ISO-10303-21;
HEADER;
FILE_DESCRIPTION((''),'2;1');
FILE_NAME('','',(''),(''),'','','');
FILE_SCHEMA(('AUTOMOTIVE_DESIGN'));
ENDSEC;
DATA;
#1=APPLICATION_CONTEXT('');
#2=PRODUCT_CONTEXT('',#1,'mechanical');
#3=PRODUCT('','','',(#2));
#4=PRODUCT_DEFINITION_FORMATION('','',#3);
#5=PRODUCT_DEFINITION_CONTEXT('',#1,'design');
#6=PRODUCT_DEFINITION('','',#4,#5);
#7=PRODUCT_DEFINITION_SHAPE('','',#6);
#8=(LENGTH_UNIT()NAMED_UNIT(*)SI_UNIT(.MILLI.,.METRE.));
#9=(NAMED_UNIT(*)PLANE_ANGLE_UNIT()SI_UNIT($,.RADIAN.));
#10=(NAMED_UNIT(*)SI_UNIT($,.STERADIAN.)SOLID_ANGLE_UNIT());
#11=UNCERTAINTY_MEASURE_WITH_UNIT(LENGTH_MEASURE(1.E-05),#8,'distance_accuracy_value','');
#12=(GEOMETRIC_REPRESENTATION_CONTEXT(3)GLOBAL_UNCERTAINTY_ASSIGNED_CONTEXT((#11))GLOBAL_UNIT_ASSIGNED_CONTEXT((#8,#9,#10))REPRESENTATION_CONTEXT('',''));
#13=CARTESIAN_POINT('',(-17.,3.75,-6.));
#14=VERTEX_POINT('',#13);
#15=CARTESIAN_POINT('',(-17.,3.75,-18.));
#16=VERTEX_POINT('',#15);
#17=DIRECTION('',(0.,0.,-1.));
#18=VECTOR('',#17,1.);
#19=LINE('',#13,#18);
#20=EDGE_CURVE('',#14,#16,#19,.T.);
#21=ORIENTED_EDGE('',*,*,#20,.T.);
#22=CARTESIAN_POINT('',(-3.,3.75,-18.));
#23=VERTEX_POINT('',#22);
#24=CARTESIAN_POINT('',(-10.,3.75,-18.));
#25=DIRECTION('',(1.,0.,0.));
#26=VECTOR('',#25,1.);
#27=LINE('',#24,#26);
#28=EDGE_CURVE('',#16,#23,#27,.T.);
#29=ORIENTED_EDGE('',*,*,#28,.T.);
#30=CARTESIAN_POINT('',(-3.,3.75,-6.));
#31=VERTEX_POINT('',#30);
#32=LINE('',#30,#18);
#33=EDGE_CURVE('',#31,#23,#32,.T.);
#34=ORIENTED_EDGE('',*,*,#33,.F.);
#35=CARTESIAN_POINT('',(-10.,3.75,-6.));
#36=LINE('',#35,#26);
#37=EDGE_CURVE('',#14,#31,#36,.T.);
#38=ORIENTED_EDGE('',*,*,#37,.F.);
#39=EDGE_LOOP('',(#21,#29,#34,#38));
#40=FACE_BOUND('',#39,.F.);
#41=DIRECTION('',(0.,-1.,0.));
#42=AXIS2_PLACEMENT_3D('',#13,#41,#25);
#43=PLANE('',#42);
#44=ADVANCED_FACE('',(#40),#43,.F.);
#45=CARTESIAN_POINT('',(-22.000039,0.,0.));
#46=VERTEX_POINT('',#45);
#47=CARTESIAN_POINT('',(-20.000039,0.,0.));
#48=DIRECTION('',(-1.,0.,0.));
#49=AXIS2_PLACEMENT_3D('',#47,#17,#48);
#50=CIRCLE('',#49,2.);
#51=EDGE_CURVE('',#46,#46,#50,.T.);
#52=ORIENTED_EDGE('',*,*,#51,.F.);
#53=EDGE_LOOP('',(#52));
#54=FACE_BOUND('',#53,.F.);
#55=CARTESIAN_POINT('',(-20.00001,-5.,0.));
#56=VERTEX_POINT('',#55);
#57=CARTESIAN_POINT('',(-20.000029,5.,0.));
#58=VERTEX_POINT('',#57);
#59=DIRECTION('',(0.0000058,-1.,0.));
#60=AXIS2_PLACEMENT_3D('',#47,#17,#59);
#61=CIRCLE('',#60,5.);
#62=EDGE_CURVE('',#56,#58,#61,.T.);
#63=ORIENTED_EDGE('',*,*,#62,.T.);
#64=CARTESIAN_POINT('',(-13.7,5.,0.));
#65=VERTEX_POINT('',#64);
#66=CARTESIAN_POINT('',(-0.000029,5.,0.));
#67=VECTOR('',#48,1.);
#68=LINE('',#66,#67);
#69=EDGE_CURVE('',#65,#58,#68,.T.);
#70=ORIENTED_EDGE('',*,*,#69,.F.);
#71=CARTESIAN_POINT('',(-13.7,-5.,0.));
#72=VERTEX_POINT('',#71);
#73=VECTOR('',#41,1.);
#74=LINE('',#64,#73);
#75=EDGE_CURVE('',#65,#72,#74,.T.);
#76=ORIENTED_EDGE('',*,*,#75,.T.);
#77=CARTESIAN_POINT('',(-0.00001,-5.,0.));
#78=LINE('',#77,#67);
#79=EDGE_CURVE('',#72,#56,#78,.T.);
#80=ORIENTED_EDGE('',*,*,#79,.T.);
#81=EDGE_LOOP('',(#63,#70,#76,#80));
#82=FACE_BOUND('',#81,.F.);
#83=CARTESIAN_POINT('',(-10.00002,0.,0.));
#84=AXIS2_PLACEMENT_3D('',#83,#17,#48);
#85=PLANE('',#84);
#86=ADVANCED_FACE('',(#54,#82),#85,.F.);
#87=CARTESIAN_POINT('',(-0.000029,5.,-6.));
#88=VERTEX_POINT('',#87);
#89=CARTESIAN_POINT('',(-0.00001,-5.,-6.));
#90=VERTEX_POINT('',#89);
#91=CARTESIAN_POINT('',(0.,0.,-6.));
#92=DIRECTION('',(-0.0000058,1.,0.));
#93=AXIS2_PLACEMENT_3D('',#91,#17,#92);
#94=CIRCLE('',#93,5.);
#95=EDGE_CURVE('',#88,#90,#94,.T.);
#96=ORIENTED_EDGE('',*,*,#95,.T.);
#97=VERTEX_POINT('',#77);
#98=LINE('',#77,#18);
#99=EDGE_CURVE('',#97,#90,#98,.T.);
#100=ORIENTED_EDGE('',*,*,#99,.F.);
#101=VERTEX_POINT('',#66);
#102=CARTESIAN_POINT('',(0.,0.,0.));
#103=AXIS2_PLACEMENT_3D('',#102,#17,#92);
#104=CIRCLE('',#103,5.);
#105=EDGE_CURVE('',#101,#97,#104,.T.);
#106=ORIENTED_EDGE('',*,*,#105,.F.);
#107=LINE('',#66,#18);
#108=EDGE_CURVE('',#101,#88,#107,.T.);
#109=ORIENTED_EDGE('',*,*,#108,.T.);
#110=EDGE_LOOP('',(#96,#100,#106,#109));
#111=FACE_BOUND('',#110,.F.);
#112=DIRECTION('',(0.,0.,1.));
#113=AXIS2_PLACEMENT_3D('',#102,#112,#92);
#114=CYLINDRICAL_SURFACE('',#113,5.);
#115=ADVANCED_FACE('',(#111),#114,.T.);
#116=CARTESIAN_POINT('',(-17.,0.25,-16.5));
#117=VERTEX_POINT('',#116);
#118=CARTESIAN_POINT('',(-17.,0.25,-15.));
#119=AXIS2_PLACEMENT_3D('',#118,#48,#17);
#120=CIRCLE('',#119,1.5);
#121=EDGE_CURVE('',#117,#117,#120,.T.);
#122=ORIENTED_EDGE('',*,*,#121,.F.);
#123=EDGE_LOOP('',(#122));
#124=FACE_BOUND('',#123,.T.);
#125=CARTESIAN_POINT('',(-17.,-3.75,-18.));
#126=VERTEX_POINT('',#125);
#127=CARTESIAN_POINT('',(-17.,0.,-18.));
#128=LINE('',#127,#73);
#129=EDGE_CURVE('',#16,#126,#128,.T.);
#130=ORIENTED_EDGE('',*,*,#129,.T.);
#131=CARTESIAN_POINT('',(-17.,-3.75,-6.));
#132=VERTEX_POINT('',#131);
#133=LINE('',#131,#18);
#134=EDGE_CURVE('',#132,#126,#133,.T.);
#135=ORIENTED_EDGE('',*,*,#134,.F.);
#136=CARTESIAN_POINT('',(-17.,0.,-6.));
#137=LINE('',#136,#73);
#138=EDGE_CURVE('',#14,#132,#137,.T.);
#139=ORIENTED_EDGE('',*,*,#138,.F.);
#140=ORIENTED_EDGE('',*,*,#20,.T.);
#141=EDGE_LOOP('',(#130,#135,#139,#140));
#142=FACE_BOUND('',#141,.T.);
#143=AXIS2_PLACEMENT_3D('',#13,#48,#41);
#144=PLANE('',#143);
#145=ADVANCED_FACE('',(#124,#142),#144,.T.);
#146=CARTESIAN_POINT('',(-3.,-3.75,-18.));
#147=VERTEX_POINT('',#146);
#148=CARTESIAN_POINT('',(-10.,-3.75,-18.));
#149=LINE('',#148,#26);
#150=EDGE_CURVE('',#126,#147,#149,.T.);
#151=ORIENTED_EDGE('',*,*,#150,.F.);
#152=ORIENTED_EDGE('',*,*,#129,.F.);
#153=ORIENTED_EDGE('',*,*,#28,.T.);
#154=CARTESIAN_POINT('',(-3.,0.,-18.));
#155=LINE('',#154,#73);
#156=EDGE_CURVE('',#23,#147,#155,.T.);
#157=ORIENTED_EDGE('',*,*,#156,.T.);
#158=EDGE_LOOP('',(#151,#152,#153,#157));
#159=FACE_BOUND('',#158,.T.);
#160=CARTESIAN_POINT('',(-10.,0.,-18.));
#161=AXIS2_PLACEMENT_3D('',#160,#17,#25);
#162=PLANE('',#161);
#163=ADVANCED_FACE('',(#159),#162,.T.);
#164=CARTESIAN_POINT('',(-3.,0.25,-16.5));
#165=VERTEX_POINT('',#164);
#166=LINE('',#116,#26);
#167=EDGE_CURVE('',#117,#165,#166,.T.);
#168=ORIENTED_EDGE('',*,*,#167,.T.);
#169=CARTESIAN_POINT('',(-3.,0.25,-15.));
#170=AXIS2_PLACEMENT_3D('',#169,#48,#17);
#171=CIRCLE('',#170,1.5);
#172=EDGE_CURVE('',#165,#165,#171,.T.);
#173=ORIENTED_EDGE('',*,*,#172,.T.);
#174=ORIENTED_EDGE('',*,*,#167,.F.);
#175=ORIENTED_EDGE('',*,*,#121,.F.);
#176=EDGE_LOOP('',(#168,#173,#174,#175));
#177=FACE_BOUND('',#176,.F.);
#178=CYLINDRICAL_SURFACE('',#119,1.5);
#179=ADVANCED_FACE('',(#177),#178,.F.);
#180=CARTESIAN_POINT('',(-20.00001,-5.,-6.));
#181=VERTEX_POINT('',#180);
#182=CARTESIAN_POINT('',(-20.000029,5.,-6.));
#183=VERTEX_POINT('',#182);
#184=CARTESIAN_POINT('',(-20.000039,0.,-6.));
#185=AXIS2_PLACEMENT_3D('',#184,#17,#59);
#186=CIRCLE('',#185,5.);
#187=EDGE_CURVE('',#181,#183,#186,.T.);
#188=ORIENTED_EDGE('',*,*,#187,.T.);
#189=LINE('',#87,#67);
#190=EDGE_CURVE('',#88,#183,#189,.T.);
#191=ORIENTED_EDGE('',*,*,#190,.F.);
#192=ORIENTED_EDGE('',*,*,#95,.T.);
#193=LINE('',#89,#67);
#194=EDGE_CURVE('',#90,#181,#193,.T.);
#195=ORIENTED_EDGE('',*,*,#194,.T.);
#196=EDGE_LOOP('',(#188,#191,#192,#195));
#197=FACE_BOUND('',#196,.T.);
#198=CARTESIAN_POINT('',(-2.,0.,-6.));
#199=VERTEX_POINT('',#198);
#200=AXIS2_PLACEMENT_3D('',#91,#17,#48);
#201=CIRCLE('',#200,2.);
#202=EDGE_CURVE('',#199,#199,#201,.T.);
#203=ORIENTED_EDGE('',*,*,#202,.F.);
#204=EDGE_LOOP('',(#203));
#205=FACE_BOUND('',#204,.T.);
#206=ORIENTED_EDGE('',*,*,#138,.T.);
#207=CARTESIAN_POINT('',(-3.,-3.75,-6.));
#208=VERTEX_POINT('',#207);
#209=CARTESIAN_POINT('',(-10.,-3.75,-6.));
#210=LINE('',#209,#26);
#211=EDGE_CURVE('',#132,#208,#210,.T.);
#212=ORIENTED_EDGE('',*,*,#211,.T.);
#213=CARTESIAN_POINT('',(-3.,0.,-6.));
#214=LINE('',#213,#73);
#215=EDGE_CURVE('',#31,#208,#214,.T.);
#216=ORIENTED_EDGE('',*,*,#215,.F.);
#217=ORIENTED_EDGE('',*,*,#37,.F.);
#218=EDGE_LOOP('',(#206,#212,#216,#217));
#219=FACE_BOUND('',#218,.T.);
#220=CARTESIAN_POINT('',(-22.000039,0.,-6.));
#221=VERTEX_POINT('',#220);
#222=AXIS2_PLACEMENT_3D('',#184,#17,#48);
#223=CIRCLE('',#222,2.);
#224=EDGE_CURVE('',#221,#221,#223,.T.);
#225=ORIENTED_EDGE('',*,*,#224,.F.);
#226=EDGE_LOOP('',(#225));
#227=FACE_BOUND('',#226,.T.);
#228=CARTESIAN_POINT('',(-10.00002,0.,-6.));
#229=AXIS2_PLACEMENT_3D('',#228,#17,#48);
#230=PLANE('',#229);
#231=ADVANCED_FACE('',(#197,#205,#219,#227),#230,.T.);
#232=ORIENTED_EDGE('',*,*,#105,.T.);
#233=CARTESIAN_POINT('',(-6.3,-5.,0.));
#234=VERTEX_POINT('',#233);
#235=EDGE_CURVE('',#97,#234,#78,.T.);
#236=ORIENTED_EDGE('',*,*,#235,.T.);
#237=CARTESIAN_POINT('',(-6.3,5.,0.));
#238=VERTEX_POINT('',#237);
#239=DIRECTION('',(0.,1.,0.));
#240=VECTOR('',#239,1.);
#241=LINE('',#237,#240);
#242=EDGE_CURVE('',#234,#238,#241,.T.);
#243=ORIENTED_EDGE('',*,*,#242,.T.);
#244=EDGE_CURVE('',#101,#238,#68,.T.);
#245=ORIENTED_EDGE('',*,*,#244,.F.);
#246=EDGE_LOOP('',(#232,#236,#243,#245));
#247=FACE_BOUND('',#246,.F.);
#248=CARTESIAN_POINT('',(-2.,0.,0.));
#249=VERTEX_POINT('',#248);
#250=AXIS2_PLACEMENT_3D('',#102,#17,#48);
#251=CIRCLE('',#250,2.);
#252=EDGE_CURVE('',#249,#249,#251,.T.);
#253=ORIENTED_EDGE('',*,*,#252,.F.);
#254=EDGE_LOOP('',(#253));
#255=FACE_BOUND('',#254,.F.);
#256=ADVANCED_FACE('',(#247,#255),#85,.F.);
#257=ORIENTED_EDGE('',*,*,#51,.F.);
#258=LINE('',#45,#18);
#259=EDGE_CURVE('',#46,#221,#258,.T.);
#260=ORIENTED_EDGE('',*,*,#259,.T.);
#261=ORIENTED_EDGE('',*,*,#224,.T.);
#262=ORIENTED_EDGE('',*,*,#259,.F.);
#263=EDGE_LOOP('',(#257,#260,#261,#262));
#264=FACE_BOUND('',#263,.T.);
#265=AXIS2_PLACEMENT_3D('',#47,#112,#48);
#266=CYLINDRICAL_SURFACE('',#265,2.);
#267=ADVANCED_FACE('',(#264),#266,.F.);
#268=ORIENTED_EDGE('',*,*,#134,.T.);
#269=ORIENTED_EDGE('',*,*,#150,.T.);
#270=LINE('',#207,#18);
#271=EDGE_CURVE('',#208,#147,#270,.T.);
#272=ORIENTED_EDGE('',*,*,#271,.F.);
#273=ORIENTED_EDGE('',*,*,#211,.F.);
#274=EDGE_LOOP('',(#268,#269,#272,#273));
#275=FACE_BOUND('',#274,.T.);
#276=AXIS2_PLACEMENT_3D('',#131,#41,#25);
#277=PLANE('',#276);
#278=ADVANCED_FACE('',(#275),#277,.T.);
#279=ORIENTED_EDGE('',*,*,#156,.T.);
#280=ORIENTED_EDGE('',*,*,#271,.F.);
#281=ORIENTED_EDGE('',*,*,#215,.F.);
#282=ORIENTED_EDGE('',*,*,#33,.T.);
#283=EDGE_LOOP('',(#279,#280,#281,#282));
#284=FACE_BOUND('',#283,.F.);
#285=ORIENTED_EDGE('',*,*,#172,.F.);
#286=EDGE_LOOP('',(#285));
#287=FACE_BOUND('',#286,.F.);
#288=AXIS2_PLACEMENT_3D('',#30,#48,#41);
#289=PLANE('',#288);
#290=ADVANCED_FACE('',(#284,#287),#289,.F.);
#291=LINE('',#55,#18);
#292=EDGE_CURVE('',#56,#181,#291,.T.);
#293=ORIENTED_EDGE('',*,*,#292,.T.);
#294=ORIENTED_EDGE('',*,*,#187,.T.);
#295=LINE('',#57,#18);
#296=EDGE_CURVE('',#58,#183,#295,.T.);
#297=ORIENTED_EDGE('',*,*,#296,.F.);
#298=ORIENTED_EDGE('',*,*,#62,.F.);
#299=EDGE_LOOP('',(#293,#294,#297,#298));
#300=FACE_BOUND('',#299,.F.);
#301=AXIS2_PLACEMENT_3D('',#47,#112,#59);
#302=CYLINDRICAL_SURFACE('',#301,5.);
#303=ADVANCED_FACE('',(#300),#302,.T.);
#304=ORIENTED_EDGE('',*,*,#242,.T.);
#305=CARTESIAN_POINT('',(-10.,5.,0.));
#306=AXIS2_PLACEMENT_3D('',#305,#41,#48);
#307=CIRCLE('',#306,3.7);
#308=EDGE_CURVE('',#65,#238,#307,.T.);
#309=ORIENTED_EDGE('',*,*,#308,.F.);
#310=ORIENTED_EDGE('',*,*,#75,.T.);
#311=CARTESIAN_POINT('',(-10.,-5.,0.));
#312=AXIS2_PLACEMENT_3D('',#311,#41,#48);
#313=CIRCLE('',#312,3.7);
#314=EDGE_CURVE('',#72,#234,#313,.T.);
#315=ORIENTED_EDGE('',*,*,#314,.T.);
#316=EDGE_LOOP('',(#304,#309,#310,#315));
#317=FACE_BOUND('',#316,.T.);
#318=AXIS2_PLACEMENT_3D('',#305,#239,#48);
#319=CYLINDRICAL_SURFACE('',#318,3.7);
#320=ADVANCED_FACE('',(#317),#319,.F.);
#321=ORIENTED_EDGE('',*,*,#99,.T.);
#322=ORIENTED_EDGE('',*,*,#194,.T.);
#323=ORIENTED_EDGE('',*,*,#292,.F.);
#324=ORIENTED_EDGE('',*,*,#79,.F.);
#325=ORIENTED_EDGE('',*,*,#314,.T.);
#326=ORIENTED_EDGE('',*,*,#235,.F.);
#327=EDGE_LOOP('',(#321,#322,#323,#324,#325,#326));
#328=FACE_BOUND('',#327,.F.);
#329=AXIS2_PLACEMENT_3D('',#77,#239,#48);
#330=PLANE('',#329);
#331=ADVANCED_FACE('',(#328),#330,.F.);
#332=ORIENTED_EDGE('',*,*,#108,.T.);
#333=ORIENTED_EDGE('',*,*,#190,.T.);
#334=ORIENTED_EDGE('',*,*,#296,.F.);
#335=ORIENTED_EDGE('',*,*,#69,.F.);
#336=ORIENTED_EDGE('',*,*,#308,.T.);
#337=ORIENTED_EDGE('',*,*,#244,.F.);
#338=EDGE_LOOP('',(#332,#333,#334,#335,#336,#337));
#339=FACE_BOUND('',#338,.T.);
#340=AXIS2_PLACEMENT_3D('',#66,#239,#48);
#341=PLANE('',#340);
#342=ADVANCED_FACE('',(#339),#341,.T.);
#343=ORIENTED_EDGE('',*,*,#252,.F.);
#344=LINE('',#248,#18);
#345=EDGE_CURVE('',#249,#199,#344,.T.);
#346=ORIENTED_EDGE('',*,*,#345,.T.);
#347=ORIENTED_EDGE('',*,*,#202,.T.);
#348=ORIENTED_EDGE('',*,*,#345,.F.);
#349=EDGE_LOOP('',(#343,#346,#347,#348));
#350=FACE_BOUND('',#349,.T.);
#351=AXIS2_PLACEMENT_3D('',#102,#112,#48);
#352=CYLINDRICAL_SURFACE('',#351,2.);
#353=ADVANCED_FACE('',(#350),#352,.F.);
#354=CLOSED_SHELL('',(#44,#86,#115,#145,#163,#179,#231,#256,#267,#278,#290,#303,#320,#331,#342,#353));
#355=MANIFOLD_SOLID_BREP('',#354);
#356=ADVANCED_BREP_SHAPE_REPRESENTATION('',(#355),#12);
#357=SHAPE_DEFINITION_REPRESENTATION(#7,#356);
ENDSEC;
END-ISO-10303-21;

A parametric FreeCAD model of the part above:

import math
import FreeCAD as App
import Part
import Sketcher
from FreeCAD import Vector
Q = App.Units.Quantity

doc = App.newDocument("Part")
params = doc.addObject("Spreadsheet::Sheet", "Params")
for row, (alias, value) in enumerate([
    ("sketch1_diameter", "4 mm"),
    ("sketch1_radius", "5 mm"),
    ("sketch1_width", "20 mm"),
    ("pad1_length", "6 mm"),
    ("sketch2_diameter", "7.4 mm"),
    ("pocket1_length", "10 mm"),
    ("sketch3_width", "14 mm"),
    ("sketch3_height", "7.5 mm"),
    ("pad2_length", "12 mm"),
    ("sketch4_diameter", "3 mm"),
    ("pocket2_length", "14 mm"),
], start=1):
    params.set(f"A{row}", alias)
    params.set(f"B{row}", "=" + value)
    params.setAlias(f"B{row}", alias)

body = doc.addObject("PartDesign::Body", "Body")

# Sketch on XY plane
sketch1 = body.newObject("Sketcher::SketchObject", "Sketch")
sketch1.AttachmentSupport = (doc.getObject("XY_Plane"), [""])
sketch1.MapMode = "FlatFace"
sketch1.addGeometry([
    Part.ArcOfCircle(Part.Circle(Vector(0, 0, 0), Vector(0, 0, 1), 5), math.radians(89.999668), math.radians(270.000115)),  # 0
    Part.LineSegment(Vector(0.00001, -5, 0), Vector(20.00001, -5, 0)),  # 1
    Part.ArcOfCircle(Part.Circle(Vector(20.000039, 0, 0), Vector(0, 0, 1), 5), math.radians(-90.000332), math.radians(90.000115)),  # 2
    Part.LineSegment(Vector(20.000029, 5, 0), Vector(0.000029, 5, 0)),  # 3
    Part.Circle(Vector(0, 0, 0), Vector(0, 0, 1), 2),  # 4
    Part.Circle(Vector(20.000039, 0, 0), Vector(0, 0, 1), 2),  # 5
], False)
sketch1.addConstraint([
    Sketcher.Constraint("Tangent", 0, 2, 1, 1),
    Sketcher.Constraint("Coincident", 1, 2, 2, 1),
    Sketcher.Constraint("Tangent", 2, 2, 3, 1),
    Sketcher.Constraint("Coincident", 3, 2, 0, 1),
    Sketcher.Constraint("Horizontal", 1),
    Sketcher.Constraint("Horizontal", 3),
    Sketcher.Constraint("Coincident", 0, 3, -1, 1),
    Sketcher.Constraint("Coincident", 4, 3, -1, 1),
    Sketcher.Constraint("Coincident", 5, 3, 2, 3),
    Sketcher.Constraint("Equal", 4, 5),
    Sketcher.Constraint("Equal", 1, 3),
    Sketcher.Constraint("Diameter", 4, Q("4 mm")),
    Sketcher.Constraint("Radius", 0, Q("5 mm")),
    Sketcher.Constraint("DistanceX", 1, 1, 1, 2, Q("20 mm")),
    Sketcher.Constraint("DistanceX", -1, 1, 2, 3, Q("20.000039 mm")),
])
sketch1.setExpression("Constraints[11]", "Params.sketch1_diameter")
sketch1.setExpression("Constraints[12]", "Params.sketch1_radius")
sketch1.setExpression("Constraints[13]", "Params.sketch1_width")
pad1 = body.newObject("PartDesign::Pad", "Pad")
pad1.Profile = sketch1
pad1.setExpression("Length", "Params.pad1_length")

# Sketch on XZ plane
sketch2 = body.newObject("Sketcher::SketchObject", "Sketch001")
sketch2.AttachmentSupport = (doc.getObject("XZ_Plane"), [""])
sketch2.MapMode = "FlatFace"
sketch2.AttachmentOffset = App.Placement(Vector(0, 0, -5), App.Rotation())
sketch2.addGeometry(Part.Circle(Vector(10, 0, 0), Vector(0, 0, 1), 3.7), False)
sketch2.addConstraint([
    Sketcher.Constraint("PointOnObject", 0, 3, -1),
    Sketcher.Constraint("Diameter", 0, Q("7.4 mm")),
    Sketcher.Constraint("DistanceX", -1, 1, 0, 3, Q("10 mm")),
])
sketch2.setExpression("Constraints[1]", "Params.sketch2_diameter")
pocket1 = body.newObject("PartDesign::Pocket", "Pocket")
pocket1.Profile = sketch2
pocket1.setExpression("Length", "Params.pocket1_length")
pocket1.Reversed = True

# Sketch on XY plane
sketch3 = body.newObject("Sketcher::SketchObject", "Sketch002")
sketch3.AttachmentSupport = (doc.getObject("XY_Plane"), [""])
sketch3.MapMode = "FlatFace"
sketch3.AttachmentOffset = App.Placement(Vector(0, 0, 6), App.Rotation())
sketch3.addGeometry([
    Part.LineSegment(Vector(17, -3.75, 0), Vector(17, 3.75, 0)),
    Part.LineSegment(Vector(17, 3.75, 0), Vector(3, 3.75, 0)),
    Part.LineSegment(Vector(3, 3.75, 0), Vector(3, -3.75, 0)),
    Part.LineSegment(Vector(3, -3.75, 0), Vector(17, -3.75, 0)),
], False)
sketch3.addConstraint([
    Sketcher.Constraint("Coincident", 0, 2, 1, 1),
    Sketcher.Constraint("Coincident", 1, 2, 2, 1),
    Sketcher.Constraint("Coincident", 2, 2, 3, 1),
    Sketcher.Constraint("Coincident", 3, 2, 0, 1),
    Sketcher.Constraint("Vertical", 0),
    Sketcher.Constraint("Horizontal", 1),
    Sketcher.Constraint("Vertical", 2),
    Sketcher.Constraint("Horizontal", 3),
    Sketcher.Constraint("DistanceX", 1, 2, 1, 1, Q("14 mm")),
    Sketcher.Constraint("DistanceY", 0, 1, 0, 2, Q("7.5 mm")),
    Sketcher.Constraint("DistanceX", -1, 1, 0, 2, Q("17 mm")),
    Sketcher.Constraint("DistanceY", -1, 1, 0, 2, Q("3.75 mm")),
])
sketch3.setExpression("Constraints[8]", "Params.sketch3_width")
sketch3.setExpression("Constraints[9]", "Params.sketch3_height")
pad2 = body.newObject("PartDesign::Pad", "Pad001")
pad2.Profile = sketch3
pad2.setExpression("Length", "Params.pad2_length")

# Sketch on YZ plane
sketch4 = body.newObject("Sketcher::SketchObject", "Sketch003")
sketch4.AttachmentSupport = (doc.getObject("YZ_Plane"), [""])
sketch4.MapMode = "FlatFace"
sketch4.AttachmentOffset = App.Placement(Vector(0, 0, 17), App.Rotation())
sketch4.addGeometry(Part.Circle(Vector(0.25, 15, 0), Vector(0, 0, 1), 1.5), False)
sketch4.addConstraint([
    Sketcher.Constraint("Diameter", 0, Q("3 mm")),
    Sketcher.Constraint("DistanceY", -1, 1, 0, 3, Q("15 mm")),
    Sketcher.Constraint("DistanceX", -1, 1, 0, 3, Q("0.25 mm")),
])
sketch4.setExpression("Constraints[0]", "Params.sketch4_diameter")
pocket2 = body.newObject("PartDesign::Pocket", "Pocket001")
pocket2.Profile = sketch4
pocket2.setExpression("Length", "Params.pocket2_length")
body2 = doc.addObject("PartDesign::Body", "Body001")
doc.recompute()

body.Placement = App.Placement(Vector(0, 0, 0), App.Rotation(Vector(0, 1, 0), 180))
boolean = body2.newObject("PartDesign::Boolean", "Boolean")
boolean.Type = "Fuse"
boolean.addObjects([body])

doc.recompute()
